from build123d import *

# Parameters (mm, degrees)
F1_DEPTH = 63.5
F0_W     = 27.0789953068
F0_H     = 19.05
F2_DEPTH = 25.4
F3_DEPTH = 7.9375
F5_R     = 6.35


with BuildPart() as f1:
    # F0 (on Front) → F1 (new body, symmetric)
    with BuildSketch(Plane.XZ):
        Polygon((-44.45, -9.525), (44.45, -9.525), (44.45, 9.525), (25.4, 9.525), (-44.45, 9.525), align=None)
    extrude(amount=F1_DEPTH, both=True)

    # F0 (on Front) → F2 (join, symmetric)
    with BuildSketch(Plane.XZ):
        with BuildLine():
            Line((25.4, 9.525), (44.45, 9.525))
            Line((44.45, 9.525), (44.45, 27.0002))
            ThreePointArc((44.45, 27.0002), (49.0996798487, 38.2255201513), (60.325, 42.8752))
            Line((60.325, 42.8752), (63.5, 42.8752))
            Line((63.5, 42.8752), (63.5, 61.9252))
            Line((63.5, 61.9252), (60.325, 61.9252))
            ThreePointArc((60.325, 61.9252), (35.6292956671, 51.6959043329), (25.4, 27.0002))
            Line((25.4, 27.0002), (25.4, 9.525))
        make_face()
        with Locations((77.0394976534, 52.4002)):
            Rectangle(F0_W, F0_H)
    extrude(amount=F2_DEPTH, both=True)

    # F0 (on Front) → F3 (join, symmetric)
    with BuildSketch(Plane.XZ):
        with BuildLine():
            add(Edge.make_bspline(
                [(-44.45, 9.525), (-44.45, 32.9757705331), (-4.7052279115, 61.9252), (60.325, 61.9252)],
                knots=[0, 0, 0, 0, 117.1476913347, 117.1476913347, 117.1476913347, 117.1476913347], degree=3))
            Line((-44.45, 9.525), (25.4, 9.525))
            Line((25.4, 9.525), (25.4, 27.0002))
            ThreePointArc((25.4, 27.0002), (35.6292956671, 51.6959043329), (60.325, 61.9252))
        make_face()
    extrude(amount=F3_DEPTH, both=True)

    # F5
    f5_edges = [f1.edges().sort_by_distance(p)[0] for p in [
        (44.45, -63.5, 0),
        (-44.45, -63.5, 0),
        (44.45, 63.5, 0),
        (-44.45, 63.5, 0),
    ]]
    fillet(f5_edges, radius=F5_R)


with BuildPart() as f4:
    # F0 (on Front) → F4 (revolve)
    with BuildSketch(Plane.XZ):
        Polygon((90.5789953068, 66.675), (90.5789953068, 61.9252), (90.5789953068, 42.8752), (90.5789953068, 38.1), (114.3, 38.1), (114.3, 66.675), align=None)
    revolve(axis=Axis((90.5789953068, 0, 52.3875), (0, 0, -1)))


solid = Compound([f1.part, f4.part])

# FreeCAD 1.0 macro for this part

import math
import FreeCAD as App
import Part
import Sketcher
from FreeCAD import Vector
Q = App.Units.Quantity


def edges_at(feature, points):
    """Names of the edges that pass closest to the given points."""
    edges = feature.Shape.Edges
    near = lambda p: min(range(len(edges)), key=lambda i: edges[i].distToShape(Part.Vertex(*p))[0])
    return sorted({f"Edge{near(p) + 1}" for p in points})


def add_polygon(sketch, points):
    """Adds a closed chain of lines whose ends are joined by coincident constraints."""
    first, n = sketch.GeometryCount, len(points)
    for a, b in zip(points, points[1:] + points[:1]):
        sketch.addGeometry(Part.LineSegment(App.Vector(*a, 0), App.Vector(*b, 0)), False)
    for i in range(n):
        sketch.addConstraint(Sketcher.Constraint("Coincident", first + i, 2, first + (i + 1) % n, 1))

doc = App.newDocument("Part")
body = doc.addObject("PartDesign::Body", "Body")

# Sketch on XZ plane
sketch1 = body.newObject("Sketcher::SketchObject", "Sketch")
sketch1.AttachmentSupport = (doc.getObject("XZ_Plane"), [""])
sketch1.MapMode = "FlatFace"
add_polygon(sketch1, [(-44, -10), (44, -10), (44, 10), (-44, 10)])  # lines 0-3
sketch1.addConstraint([
    Sketcher.Constraint("Horizontal", 0),
    Sketcher.Constraint("Vertical", 1),
    Sketcher.Constraint("Horizontal", 2),
    Sketcher.Constraint("Vertical", 3),
    Sketcher.Constraint("Symmetric", 0, 2, 2, 2, -1, 1),
    Sketcher.Constraint("DistanceX", 0, 1, 0, 2, Q("3.5 in")),
    Sketcher.Constraint("DistanceY", 1, 1, 1, 2, Q("0.75 in")),
])
pad1 = body.newObject("PartDesign::Pad", "Pad")
pad1.Profile = sketch1
pad1.Length = Q("5 in")
pad1.Midplane = True

# Sketch on XZ plane
sketch2 = body.newObject("Sketcher::SketchObject", "Sketch001")
sketch2.AttachmentSupport = (doc.getObject("XZ_Plane"), [""])
sketch2.MapMode = "FlatFace"
sketch2.addGeometry([
    Part.LineSegment(Vector(25, 10, 0), Vector(44, 10, 0)),  # 0
    Part.LineSegment(Vector(44, 10, 0), Vector(44, 27, 0)),  # 1
    Part.ArcOfCircle(Part.Circle(Vector(60, 27, 0), Vector(0, 0, 1), 16), math.radians(90), math.radians(180)),  # 2
    Part.LineSegment(Vector(60, 43, 0), Vector(91, 43, 0)),  # 3
    Part.LineSegment(Vector(91, 43, 0), Vector(91, 62, 0)),  # 4
    Part.LineSegment(Vector(91, 62, 0), Vector(60, 62, 0)),  # 5
    Part.ArcOfCircle(Part.Circle(Vector(60, 27, 0), Vector(0, 0, 1), 35), math.radians(90), math.radians(180)),  # 6
    Part.LineSegment(Vector(25, 27, 0), Vector(25, 10, 0)),  # 7
], False)
sketch2.addConstraint([
    Sketcher.Constraint("Coincident", 0, 2, 1, 1),
    Sketcher.Constraint("Tangent", 1, 2, 2, 2),
    Sketcher.Constraint("Tangent", 2, 1, 3, 1),
    Sketcher.Constraint("Coincident", 3, 2, 4, 1),
    Sketcher.Constraint("Coincident", 4, 2, 5, 1),
    Sketcher.Constraint("Tangent", 5, 2, 6, 1),
    Sketcher.Constraint("Tangent", 6, 2, 7, 1),
    Sketcher.Constraint("Coincident", 7, 2, 0, 1),
    Sketcher.Constraint("Horizontal", 0),
    Sketcher.Constraint("Vertical", 1),
    Sketcher.Constraint("Horizontal", 3),
    Sketcher.Constraint("Vertical", 4),
    Sketcher.Constraint("Horizontal", 5),
    Sketcher.Constraint("Vertical", 7),
    Sketcher.Constraint("Coincident", 6, 3, 2, 3),
    Sketcher.Constraint("DistanceX", -1, 1, 6, 2, Q("1 in")),
    Sketcher.Constraint("Radius", 2, Q("0.625 in")),
    Sketcher.Constraint("Radius", 6, Q("1.375 in")),
    Sketcher.Constraint("DistanceY", 1, 1, 1, 2, Q("0.688 in")),
    Sketcher.Constraint("DistanceY", -1, 1, 2, 3, Q("1.063 in")),
    Sketcher.Constraint("DistanceX", 3, 1, 3, 2, Q("30.253995 mm")),
])
pad2 = body.newObject("PartDesign::Pad", "Pad001")
pad2.Profile = sketch2
pad2.Length = Q("2 in")
pad2.Midplane = True

# Sketch on XZ plane
sketch3 = body.newObject("Sketcher::SketchObject", "Sketch002")
sketch3.AttachmentSupport = (doc.getObject("XZ_Plane"), [""])
sketch3.MapMode = "FlatFace"
sketch3.addGeometry([
    Part.BSplineCurve([Vector(-44.45, 9.525, 0), Vector(-44.45, 32.975771, 0), Vector(-4.705228, 61.9252, 0), Vector(60.325, 61.9252, 0)], [4, 4], [0, 117.147691335], False, 3, [1, 1, 1, 1], False),
    Part.LineSegment(Vector(-44.45, 9.525, 0), Vector(25.4, 9.525, 0)),
    Part.LineSegment(Vector(25.4, 9.525, 0), Vector(25.4, 27.0002, 0)),
    Part.ArcOfCircle(Part.Circle(Vector(60.325, 27.0002, 0), Vector(0, 0, 1), 34.925), math.radians(90), math.radians(180)),
], False)
sketch3.addConstraint([
    Sketcher.Constraint("Block", 0),
    Sketcher.Constraint("Coincident", 0, 1, 1, 1),
    Sketcher.Constraint("Coincident", 1, 2, 2, 1),
    Sketcher.Constraint("Tangent", 2, 2, 3, 2),
    Sketcher.Constraint("Coincident", 3, 1, 0, 2),
    Sketcher.Constraint("Horizontal", 1),
    Sketcher.Constraint("Vertical", 2),
    Sketcher.Constraint("DistanceX", -1, 1, 1, 2, Q("1 in")),
    Sketcher.Constraint("Radius", 3, Q("1.375 in")),
])
pad3 = body.newObject("PartDesign::Pad", "Pad002")
pad3.Profile = sketch3
pad3.Length = Q("0.625 in")
pad3.Midplane = True
doc.recompute()

fillet = body.newObject("PartDesign::Fillet", "Fillet")
fillet.Base = (pad3, edges_at(pad3, [
    (44.45, -63.5, 0),
    (-44.45, -63.5, 0),
    (44.45, 63.5, 0),
    (-44.45, 63.5, 0),
]))
fillet.Radius = Q("0.25 in")
body2 = doc.addObject("PartDesign::Body", "Body001")

# Sketch on XZ plane
sketch4 = body2.newObject("Sketcher::SketchObject", "Sketch003")
sketch4.AttachmentSupport = (doc.getObject("XZ_Plane001"), [""])
sketch4.MapMode = "FlatFace"
add_polygon(sketch4, [(91, 67), (91, 38), (114, 38), (114, 67)])  # lines 0-3
sketch4.addGeometry(Part.LineSegment(Vector(91, 67, 0), Vector(91, 38, 0)), True)  # axis
sketch4.addConstraint([
    Sketcher.Constraint("Vertical", 0),
    Sketcher.Constraint("Horizontal", 1),
    Sketcher.Constraint("Vertical", 2),
    Sketcher.Constraint("Horizontal", 3),
    Sketcher.Constraint("Vertical", 4),
    Sketcher.Constraint("Coincident", 4, 1, 3, 2),
    Sketcher.Constraint("Horizontal", 1, 2, 4, 2),
    Sketcher.Constraint("DistanceY", -1, 1, 0, 2, Q("1.5 in")),
    Sketcher.Constraint("DistanceX", -1, 1, 1, 2, Q("4.5 in")),
    Sketcher.Constraint("DistanceY", 0, 2, 0, 1, Q("1.125 in")),
    Sketcher.Constraint("DistanceX", 1, 1, 1, 2, Q("23.721005 mm")),
])
revolution = body2.newObject("PartDesign::Revolution", "Revolution")
revolution.Profile = sketch4
revolution.ReferenceAxis = (sketch4, ["Axis0"])
revolution.Angle = 360

doc.recompute()
